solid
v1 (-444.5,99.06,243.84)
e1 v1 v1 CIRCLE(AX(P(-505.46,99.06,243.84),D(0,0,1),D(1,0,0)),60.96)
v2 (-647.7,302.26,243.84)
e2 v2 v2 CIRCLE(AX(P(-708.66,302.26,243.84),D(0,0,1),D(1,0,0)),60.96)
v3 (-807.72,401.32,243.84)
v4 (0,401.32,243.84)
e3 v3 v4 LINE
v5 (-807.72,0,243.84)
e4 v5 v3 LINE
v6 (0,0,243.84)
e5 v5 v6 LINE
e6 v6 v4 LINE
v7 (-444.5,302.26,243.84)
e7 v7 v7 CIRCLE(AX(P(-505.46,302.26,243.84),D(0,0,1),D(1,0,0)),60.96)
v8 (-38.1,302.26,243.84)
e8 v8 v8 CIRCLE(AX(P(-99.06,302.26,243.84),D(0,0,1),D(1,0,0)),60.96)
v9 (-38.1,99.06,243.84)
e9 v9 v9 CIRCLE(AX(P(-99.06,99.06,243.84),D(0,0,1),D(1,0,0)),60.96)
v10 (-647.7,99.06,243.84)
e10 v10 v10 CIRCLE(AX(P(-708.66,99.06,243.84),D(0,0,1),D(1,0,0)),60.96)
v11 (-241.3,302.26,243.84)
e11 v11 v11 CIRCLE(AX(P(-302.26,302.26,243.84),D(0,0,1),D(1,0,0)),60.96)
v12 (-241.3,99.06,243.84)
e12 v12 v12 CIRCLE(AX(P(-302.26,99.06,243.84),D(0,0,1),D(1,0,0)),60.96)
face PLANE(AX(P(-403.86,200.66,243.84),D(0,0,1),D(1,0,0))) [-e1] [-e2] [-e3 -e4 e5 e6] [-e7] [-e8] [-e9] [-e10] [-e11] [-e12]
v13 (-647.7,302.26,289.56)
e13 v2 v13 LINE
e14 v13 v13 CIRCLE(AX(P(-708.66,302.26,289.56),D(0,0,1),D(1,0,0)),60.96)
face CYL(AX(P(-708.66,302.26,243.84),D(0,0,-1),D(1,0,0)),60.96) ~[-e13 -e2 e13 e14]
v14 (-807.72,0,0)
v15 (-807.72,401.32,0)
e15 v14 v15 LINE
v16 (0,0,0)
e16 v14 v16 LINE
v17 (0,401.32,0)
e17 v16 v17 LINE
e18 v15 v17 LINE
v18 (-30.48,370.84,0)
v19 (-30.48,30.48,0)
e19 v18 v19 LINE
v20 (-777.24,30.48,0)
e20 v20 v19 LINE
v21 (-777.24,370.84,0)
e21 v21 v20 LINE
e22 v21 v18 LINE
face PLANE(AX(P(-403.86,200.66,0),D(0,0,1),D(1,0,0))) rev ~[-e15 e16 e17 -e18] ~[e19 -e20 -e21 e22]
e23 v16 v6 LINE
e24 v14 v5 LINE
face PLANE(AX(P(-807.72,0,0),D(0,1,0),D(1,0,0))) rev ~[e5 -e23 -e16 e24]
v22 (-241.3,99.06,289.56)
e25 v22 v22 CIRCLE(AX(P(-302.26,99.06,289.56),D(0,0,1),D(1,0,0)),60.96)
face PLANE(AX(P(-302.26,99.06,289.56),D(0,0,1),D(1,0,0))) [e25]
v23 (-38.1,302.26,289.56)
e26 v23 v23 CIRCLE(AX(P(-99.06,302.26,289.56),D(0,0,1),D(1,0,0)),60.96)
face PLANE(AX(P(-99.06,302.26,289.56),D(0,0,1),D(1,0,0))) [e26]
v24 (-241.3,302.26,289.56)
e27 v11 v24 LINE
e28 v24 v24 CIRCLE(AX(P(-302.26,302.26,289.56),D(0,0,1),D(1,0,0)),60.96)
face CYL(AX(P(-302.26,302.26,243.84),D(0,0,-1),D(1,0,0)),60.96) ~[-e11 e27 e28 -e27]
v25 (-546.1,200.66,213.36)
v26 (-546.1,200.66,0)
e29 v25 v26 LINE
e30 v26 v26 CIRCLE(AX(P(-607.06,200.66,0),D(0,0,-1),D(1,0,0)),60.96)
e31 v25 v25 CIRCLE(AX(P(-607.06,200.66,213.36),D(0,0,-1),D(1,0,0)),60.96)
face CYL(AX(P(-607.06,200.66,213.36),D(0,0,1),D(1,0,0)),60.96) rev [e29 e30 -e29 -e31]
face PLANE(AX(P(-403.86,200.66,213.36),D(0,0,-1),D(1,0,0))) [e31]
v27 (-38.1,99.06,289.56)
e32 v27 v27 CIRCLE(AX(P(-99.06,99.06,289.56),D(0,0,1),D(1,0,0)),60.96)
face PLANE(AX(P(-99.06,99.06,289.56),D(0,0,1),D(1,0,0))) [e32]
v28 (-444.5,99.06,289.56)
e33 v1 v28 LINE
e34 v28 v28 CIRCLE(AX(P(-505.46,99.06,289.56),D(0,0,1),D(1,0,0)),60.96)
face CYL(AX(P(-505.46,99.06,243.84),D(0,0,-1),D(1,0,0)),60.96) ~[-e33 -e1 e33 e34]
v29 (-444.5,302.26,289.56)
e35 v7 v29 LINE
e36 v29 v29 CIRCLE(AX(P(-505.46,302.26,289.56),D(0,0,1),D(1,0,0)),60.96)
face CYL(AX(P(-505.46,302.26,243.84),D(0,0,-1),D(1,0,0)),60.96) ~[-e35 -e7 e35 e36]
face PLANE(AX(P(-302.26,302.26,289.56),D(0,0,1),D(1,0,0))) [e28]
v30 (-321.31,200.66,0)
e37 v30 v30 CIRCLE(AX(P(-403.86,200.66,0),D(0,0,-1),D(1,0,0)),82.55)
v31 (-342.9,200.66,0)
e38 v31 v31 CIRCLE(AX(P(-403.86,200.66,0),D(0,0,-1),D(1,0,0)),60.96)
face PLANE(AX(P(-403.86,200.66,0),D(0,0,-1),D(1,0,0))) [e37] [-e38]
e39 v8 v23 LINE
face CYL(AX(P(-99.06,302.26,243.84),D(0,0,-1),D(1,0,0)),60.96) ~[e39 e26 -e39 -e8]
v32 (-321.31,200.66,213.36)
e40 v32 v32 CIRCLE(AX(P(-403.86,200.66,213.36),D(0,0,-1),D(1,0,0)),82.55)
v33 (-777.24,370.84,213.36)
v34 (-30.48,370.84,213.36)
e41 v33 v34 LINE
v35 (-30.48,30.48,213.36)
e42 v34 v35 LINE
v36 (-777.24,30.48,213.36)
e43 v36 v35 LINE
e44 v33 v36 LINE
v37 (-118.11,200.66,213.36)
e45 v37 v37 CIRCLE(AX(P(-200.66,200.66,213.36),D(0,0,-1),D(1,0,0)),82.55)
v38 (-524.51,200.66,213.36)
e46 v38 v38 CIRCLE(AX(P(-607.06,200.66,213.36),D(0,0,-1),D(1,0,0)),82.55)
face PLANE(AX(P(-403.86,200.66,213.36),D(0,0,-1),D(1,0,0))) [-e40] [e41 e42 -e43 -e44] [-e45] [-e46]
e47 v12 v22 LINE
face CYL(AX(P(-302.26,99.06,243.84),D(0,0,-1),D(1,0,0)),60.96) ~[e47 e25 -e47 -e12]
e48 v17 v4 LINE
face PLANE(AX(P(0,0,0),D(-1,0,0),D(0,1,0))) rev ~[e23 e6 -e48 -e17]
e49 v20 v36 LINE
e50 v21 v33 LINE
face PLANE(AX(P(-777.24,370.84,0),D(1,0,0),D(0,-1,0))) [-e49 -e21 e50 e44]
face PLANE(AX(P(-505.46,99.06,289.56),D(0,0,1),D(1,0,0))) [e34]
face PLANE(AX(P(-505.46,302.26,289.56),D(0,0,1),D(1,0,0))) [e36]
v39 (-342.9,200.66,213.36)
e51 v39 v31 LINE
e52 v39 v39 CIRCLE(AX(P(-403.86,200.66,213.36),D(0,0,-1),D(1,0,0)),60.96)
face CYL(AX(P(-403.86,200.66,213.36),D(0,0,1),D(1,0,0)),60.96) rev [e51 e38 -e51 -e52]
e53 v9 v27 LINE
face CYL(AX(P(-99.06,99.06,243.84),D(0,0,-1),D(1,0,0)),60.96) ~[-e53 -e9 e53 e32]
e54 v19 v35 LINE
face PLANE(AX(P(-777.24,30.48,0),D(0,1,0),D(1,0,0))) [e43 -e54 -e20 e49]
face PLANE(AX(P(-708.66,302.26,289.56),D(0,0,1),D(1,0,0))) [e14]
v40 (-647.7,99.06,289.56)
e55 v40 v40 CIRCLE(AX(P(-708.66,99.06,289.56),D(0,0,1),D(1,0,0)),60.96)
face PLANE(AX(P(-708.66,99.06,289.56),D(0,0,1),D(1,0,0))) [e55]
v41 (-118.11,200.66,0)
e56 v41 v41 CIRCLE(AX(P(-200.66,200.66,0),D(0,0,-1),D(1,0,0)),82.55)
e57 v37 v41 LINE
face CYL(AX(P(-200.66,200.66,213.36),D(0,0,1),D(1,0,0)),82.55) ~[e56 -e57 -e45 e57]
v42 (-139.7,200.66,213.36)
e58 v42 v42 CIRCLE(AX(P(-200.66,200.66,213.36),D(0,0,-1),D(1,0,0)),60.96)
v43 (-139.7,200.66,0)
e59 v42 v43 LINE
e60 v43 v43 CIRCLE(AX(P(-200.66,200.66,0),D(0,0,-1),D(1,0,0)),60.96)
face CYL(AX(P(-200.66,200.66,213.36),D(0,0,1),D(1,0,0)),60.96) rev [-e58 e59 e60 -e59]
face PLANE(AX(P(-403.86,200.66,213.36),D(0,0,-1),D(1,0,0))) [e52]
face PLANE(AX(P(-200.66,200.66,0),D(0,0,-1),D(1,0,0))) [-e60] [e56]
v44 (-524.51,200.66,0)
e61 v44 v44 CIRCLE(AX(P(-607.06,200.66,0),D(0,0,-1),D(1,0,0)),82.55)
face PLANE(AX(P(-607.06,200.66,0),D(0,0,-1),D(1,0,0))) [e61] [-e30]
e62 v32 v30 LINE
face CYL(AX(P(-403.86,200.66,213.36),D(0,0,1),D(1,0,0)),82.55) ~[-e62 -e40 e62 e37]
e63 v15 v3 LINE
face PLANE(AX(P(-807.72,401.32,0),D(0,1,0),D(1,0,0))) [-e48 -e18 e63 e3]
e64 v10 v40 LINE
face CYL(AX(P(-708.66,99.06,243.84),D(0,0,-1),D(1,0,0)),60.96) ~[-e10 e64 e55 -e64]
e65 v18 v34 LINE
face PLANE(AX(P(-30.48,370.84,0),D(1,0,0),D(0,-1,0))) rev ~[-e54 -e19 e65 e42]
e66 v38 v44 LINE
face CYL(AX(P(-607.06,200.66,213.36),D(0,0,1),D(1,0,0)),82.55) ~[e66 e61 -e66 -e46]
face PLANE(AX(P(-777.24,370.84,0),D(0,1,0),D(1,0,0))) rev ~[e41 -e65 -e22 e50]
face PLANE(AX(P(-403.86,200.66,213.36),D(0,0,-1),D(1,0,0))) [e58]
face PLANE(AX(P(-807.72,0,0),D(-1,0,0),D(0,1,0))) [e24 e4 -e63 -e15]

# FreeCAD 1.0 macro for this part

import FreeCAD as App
import Part
import Sketcher
Q = App.Units.Quantity

doc = App.newDocument("Part")
params = doc.addObject("Spreadsheet::Sheet", "Params")
for row, (alias, value) in enumerate([
    ("sketch1_width", "31.8 in"),
    ("sketch1_height", "15.8 in"),
    ("pad1_length", "9.6 in"),
    ("sketch2_diameter", "4.8 in"),
    ("pad2_length", "1.8 in"),
    ("sketch3_width", "29.4 in"),
    ("sketch3_height", "13.4 in"),
    ("pocket1_length", "8.4 in"),
    ("sketch4_diameter", "6.5 in"),
    ("sketch4_diameter2", "4.8 in"),
    ("pad3_length", "8.4 in"),
], start=1):
    params.set(f"A{row}", alias)
    params.set(f"B{row}", "=" + value)
    params.setAlias(f"B{row}", alias)

body = doc.addObject("PartDesign::Body", "Body")

# Sketch on XY plane
sketch1 = doc.addObject("Sketcher::SketchObject", "Sketch")
body.addObject(sketch1)
sketch1.AttachmentSupport = (doc.XY_Plane, [""])
sketch1.MapMode = "FlatFace"
sketch1.addGeometry([
    Part.LineSegment(App.Vector(-808, 401, 0), App.Vector(-808, 0, 0)),
    Part.LineSegment(App.Vector(-808, 0, 0), App.Vector(0, 0, 0)),
    Part.LineSegment(App.Vector(0, 0, 0), App.Vector(0, 401, 0)),
    Part.LineSegment(App.Vector(0, 401, 0), App.Vector(-808, 401, 0)),
], False)
sketch1.addConstraint([
    Sketcher.Constraint("Coincident", 0, 2, 1, 1),
    Sketcher.Constraint("Coincident", 1, 2, 2, 1),
    Sketcher.Constraint("Coincident", 2, 2, 3, 1),
    Sketcher.Constraint("Coincident", 3, 2, 0, 1),
    Sketcher.Constraint("Vertical", 0),
    Sketcher.Constraint("Horizontal", 1),
    Sketcher.Constraint("Vertical", 2),
    Sketcher.Constraint("Horizontal", 3),
    Sketcher.Constraint("Coincident", 1, 2, -1, 1),
    Sketcher.Constraint("DistanceX", 1, 1, 1, 2, Q("31.8 in")),
    Sketcher.Constraint("DistanceY", 0, 2, 0, 1, Q("15.8 in")),
])
sketch1.setExpression("Constraints[9]", "Params.sketch1_width")
sketch1.setExpression("Constraints[10]", "Params.sketch1_height")
pad1 = doc.addObject("PartDesign::Pad", "Pad")
body.addObject(pad1)
pad1.Profile = sketch1
pad1.setExpression("Length", "Params.pad1_length")

# Sketch on XY plane
sketch2 = doc.addObject("Sketcher::SketchObject", "Sketch001")
body.addObject(sketch2)
sketch2.AttachmentSupport = (doc.XY_Plane, [""])
sketch2.MapMode = "FlatFace"
sketch2.AttachmentOffset = App.Placement(App.Vector(0, 0, 9.6 * 25.4), App.Rotation())
sketch2.addGeometry([
    Part.Circle(App.Vector(-709, 302, 0), App.Vector(0, 0, 1), 61),  # 0
    Part.Circle(App.Vector(-505, 302, 0), App.Vector(0, 0, 1), 61),  # 1
    Part.Circle(App.Vector(-302, 302, 0), App.Vector(0, 0, 1), 61),  # 2
    Part.Circle(App.Vector(-99, 302, 0), App.Vector(0, 0, 1), 61),  # 3
    Part.Circle(App.Vector(-99, 99, 0), App.Vector(0, 0, 1), 61),  # 4
    Part.Circle(App.Vector(-302, 99, 0), App.Vector(0, 0, 1), 61),  # 5
    Part.Circle(App.Vector(-505, 99, 0), App.Vector(0, 0, 1), 61),  # 6
    Part.Circle(App.Vector(-709, 99, 0), App.Vector(0, 0, 1), 61),  # 7
], False)
sketch2.addConstraint([
    Sketcher.Constraint("Equal", 0, 1),
    Sketcher.Constraint("Equal", 1, 2),
    Sketcher.Constraint("Equal", 2, 3),
    Sketcher.Constraint("Equal", 3, 4),
    Sketcher.Constraint("Equal", 4, 5),
    Sketcher.Constraint("Equal", 5, 6),
    Sketcher.Constraint("Equal", 6, 7),
    Sketcher.Constraint("Horizontal", 0, 3, 1, 3),
    Sketcher.Constraint("Horizontal", 1, 3, 2, 3),
    Sketcher.Constraint("Horizontal", 2, 3, 3, 3),
    Sketcher.Constraint("Horizontal", 4, 3, 5, 3),
    Sketcher.Constraint("Horizontal", 5, 3, 6, 3),
    Sketcher.Constraint("Horizontal", 6, 3, 7, 3),
    Sketcher.Constraint("Vertical", 3, 3, 4, 3),
    Sketcher.Constraint("Vertical", 2, 3, 5, 3),
    Sketcher.Constraint("Vertical", 1, 3, 6, 3),
    Sketcher.Constraint("Vertical", 0, 3, 7, 3),
    Sketcher.Constraint("Diameter", 0, Q("4.8 in")),
    Sketcher.Constraint("DistanceX", 0, 3, 1, 3, Q("8 in")),
    Sketcher.Constraint("DistanceX", 1, 3, 2, 3, Q("8 in")),
    Sketcher.Constraint("DistanceX", 2, 3, 3, 3, Q("8 in")),
    Sketcher.Constraint("DistanceY", 4, 3, 3, 3, Q("8 in")),
    Sketcher.Constraint("DistanceX", 0, 3, -1, 1, Q("27.9 in")),
    Sketcher.Constraint("DistanceY", -1, 1, 0, 3, Q("11.9 in")),
])
sketch2.setExpression("Constraints[17]", "Params.sketch2_diameter")
pad2 = doc.addObject("PartDesign::Pad", "Pad001")
body.addObject(pad2)
pad2.Profile = sketch2
pad2.setExpression("Length", "Params.pad2_length")

# Sketch on XY plane
sketch3 = doc.addObject("Sketcher::SketchObject", "Sketch002")
body.addObject(sketch3)
sketch3.AttachmentSupport = (doc.XY_Plane, [""])
sketch3.MapMode = "FlatFace"
sketch3.addGeometry([
    Part.LineSegment(App.Vector(-777, 30, 0), App.Vector(-777, 371, 0)),
    Part.LineSegment(App.Vector(-777, 371, 0), App.Vector(-30, 371, 0)),
    Part.LineSegment(App.Vector(-30, 371, 0), App.Vector(-30, 30, 0)),
    Part.LineSegment(App.Vector(-30, 30, 0), App.Vector(-777, 30, 0)),
], False)
sketch3.addConstraint([
    Sketcher.Constraint("Coincident", 0, 2, 1, 1),
    Sketcher.Constraint("Coincident", 1, 2, 2, 1),
    Sketcher.Constraint("Coincident", 2, 2, 3, 1),
    Sketcher.Constraint("Coincident", 3, 2, 0, 1),
    Sketcher.Constraint("Vertical", 0),
    Sketcher.Constraint("Horizontal", 1),
    Sketcher.Constraint("Vertical", 2),
    Sketcher.Constraint("Horizontal", 3),
    Sketcher.Constraint("DistanceX", 1, 1, 1, 2, Q("29.4 in")),
    Sketcher.Constraint("DistanceY", 0, 1, 0, 2, Q("13.4 in")),
    Sketcher.Constraint("DistanceX", 0, 2, -1, 1, Q("30.6 in")),
    Sketcher.Constraint("DistanceY", -1, 1, 0, 2, Q("14.6 in")),
])
sketch3.setExpression("Constraints[8]", "Params.sketch3_width")
sketch3.setExpression("Constraints[9]", "Params.sketch3_height")
pocket1 = doc.addObject("PartDesign::Pocket", "Pocket")
body.addObject(pocket1)
pocket1.Profile = sketch3
pocket1.setExpression("Length", "Params.pocket1_length")
pocket1.Reversed = True

# Sketch on XY plane
sketch4 = doc.addObject("Sketcher::SketchObject", "Sketch003")
body.addObject(sketch4)
sketch4.AttachmentSupport = (doc.XY_Plane, [""])
sketch4.MapMode = "FlatFace"
sketch4.AttachmentOffset = App.Placement(App.Vector(0, 0, 8.4 * 25.4), App.Rotation())
sketch4.addGeometry([
    Part.Circle(App.Vector(-607, 201, 0), App.Vector(0, 0, 1), 83),  # 0
    Part.Circle(App.Vector(-607, 201, 0), App.Vector(0, 0, 1), 61),  # 1
    Part.Circle(App.Vector(-404, 201, 0), App.Vector(0, 0, 1), 83),  # 2
    Part.Circle(App.Vector(-404, 201, 0), App.Vector(0, 0, 1), 61),  # 3
    Part.Circle(App.Vector(-201, 201, 0), App.Vector(0, 0, 1), 83),  # 4
    Part.Circle(App.Vector(-201, 201, 0), App.Vector(0, 0, 1), 61),  # 5
], False)
sketch4.addConstraint([
    Sketcher.Constraint("Coincident", 1, 3, 0, 3),
    Sketcher.Constraint("Coincident", 3, 3, 2, 3),
    Sketcher.Constraint("Coincident", 5, 3, 4, 3),
    Sketcher.Constraint("Equal", 0, 2),
    Sketcher.Constraint("Equal", 1, 3),
    Sketcher.Constraint("Equal", 2, 4),
    Sketcher.Constraint("Equal", 3, 5),
    Sketcher.Constraint("Horizontal", 1, 3, 2, 3),
    Sketcher.Constraint("Horizontal", 3, 3, 4, 3),
    Sketcher.Constraint("Diameter", 0, Q("6.5 in")),
    Sketcher.Constraint("Diameter", 1, Q("4.8 in")),
    Sketcher.Constraint("DistanceX", 0, 3, 2, 3, Q("8 in")),
    Sketcher.Constraint("DistanceX", 2, 3, 4, 3, Q("8 in")),
    Sketcher.Constraint("DistanceX", 0, 3, -1, 1, Q("23.9 in")),
    Sketcher.Constraint("DistanceY", -1, 1, 0, 3, Q("7.9 in")),
])
sketch4.setExpression("Constraints[9]", "Params.sketch4_diameter")
sketch4.setExpression("Constraints[10]", "Params.sketch4_diameter2")
pad3 = doc.addObject("PartDesign::Pad", "Pad002")
body.addObject(pad3)
pad3.Profile = sketch4
pad3.setExpression("Length", "Params.pad3_length")
pad3.Reversed = True
body2 = doc.addObject("PartDesign::Body", "Body001")
doc.recompute()

body2.BaseFeature = body
doc.recompute()
body3 = doc.addObject("PartDesign::Body", "Body002")
doc.recompute()

body3.BaseFeature = body
doc.recompute()
body.Visibility = False
body2.Visibility = False

doc.recompute()
